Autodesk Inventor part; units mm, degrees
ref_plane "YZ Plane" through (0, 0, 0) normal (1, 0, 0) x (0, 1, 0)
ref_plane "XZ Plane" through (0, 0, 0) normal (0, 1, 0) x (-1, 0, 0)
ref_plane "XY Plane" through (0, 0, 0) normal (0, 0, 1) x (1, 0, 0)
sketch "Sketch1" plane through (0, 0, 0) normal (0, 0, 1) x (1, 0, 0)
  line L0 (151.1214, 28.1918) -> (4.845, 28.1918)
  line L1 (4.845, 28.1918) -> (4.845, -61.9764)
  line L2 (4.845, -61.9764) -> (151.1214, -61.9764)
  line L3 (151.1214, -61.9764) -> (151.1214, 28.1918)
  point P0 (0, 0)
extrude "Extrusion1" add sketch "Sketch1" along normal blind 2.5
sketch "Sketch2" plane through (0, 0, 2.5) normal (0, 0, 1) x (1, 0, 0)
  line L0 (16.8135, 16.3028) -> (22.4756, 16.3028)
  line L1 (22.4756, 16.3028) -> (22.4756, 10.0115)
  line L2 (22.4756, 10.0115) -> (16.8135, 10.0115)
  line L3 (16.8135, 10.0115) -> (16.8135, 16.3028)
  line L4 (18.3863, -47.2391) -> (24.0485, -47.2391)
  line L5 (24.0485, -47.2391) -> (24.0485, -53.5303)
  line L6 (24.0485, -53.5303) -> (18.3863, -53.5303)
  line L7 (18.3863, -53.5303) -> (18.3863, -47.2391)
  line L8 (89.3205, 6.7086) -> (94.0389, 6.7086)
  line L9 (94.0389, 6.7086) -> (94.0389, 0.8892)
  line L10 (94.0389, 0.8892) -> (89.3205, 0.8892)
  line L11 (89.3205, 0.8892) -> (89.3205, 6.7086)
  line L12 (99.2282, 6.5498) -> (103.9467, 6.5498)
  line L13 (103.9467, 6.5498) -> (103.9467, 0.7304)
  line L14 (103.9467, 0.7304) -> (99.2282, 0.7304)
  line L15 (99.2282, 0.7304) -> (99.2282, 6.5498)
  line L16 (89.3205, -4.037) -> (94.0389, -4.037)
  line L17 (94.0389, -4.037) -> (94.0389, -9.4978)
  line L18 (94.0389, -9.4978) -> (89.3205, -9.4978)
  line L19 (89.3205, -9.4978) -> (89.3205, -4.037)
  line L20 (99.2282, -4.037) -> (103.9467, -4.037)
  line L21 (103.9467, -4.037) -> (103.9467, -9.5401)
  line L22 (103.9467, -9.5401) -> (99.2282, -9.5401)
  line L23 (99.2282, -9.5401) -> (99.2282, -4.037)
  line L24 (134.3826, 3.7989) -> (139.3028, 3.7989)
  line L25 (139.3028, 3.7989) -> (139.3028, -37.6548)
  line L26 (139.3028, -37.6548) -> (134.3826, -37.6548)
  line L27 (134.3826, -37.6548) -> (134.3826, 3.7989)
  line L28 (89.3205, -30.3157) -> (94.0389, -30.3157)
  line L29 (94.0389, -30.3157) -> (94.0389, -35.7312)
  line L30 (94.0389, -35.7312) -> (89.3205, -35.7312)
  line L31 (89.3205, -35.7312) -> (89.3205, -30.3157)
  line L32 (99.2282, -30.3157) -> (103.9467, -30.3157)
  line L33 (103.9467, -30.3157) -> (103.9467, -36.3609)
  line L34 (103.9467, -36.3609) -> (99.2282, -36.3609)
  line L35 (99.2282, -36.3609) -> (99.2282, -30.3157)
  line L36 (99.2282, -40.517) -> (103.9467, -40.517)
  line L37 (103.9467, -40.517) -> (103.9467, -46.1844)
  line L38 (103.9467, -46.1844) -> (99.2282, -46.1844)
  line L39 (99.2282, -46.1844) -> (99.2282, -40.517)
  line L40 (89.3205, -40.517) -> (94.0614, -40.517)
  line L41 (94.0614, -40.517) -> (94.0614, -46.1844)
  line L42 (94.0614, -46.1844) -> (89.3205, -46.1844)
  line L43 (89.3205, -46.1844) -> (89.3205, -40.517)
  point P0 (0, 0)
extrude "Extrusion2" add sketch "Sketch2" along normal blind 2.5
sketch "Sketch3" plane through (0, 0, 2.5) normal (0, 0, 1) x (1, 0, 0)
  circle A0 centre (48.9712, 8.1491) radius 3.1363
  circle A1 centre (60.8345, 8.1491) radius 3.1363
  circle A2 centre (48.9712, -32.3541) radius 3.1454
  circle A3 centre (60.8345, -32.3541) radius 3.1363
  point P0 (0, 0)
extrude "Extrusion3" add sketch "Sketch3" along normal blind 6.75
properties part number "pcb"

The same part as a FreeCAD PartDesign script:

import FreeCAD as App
import Part
import Sketcher
Q = App.Units.Quantity

doc = App.newDocument("Part")
body = doc.addObject("PartDesign::Body", "Body")

# Sketch on XY plane
sketch1 = doc.addObject("Sketcher::SketchObject", "Sketch")
body.addObject(sketch1)
sketch1.AttachmentSupport = (doc.XY_Plane, [""])
sketch1.MapMode = "FlatFace"
sketch1.addGeometry(Part.LineSegment(App.Vector(151.1214, -61.9764, 0), App.Vector(151.1214, 28.1918, 0)), False)
sketch1.addGeometry(Part.LineSegment(App.Vector(151.1214, 28.1918, 0), App.Vector(4.845, 28.1918, 0)), False)
sketch1.addGeometry(Part.LineSegment(App.Vector(4.845, 28.1918, 0), App.Vector(4.845, -61.9764, 0)), False)
sketch1.addGeometry(Part.LineSegment(App.Vector(4.845, -61.9764, 0), App.Vector(151.1214, -61.9764, 0)), False)
sketch1.addConstraint(Sketcher.Constraint("Coincident", 0, 2, 1, 1))
sketch1.addConstraint(Sketcher.Constraint("Coincident", 1, 2, 2, 1))
sketch1.addConstraint(Sketcher.Constraint("Coincident", 2, 2, 3, 1))
sketch1.addConstraint(Sketcher.Constraint("Coincident", 3, 2, 0, 1))
sketch1.addConstraint(Sketcher.Constraint("Vertical", 0))
sketch1.addConstraint(Sketcher.Constraint("Horizontal", 1))
sketch1.addConstraint(Sketcher.Constraint("Vertical", 2))
sketch1.addConstraint(Sketcher.Constraint("Horizontal", 3))
sketch1.addConstraint(Sketcher.Constraint("DistanceX", 1, 2, 1, 1, 146.2764))
sketch1.addConstraint(Sketcher.Constraint("DistanceY", 0, 1, 0, 2, 90.1682))
sketch1.addConstraint(Sketcher.Constraint("DistanceX", -1, 1, 0, 2, 151.1214))
sketch1.addConstraint(Sketcher.Constraint("DistanceY", -1, 1, 0, 2, 28.1918))
pad1 = doc.addObject("PartDesign::Pad", "Pad")
body.addObject(pad1)
pad1.Profile = sketch1
pad1.Length = 2.5

# Sketch on XY plane
sketch2 = doc.addObject("Sketcher::SketchObject", "Sketch001")
body.addObject(sketch2)
sketch2.AttachmentSupport = (doc.XY_Plane, [""])
sketch2.MapMode = "FlatFace"
sketch2.AttachmentOffset = App.Placement(App.Vector(0, 0, 2.5), App.Rotation())
sketch2.addGeometry(Part.LineSegment(App.Vector(22.4756, 16.3028, 0), App.Vector(16.8135, 16.3028, 0)), False)
sketch2.addGeometry(Part.LineSegment(App.Vector(16.8135, 16.3028, 0), App.Vector(16.8135, 10.0115, 0)), False)
sketch2.addGeometry(Part.LineSegment(App.Vector(16.8135, 10.0115, 0), App.Vector(22.4756, 10.0115, 0)), False)
sketch2.addGeometry(Part.LineSegment(App.Vector(22.4756, 10.0115, 0), App.Vector(22.4756, 16.3028, 0)), False)
sketch2.addGeometry(Part.LineSegment(App.Vector(24.0485, -47.2391, 0), App.Vector(18.3863, -47.2391, 0)), False)
sketch2.addGeometry(Part.LineSegment(App.Vector(18.3863, -47.2391, 0), App.Vector(18.3863, -53.5303, 0)), False)
sketch2.addGeometry(Part.LineSegment(App.Vector(18.3863, -53.5303, 0), App.Vector(24.0485, -53.5303, 0)), False)
sketch2.addGeometry(Part.LineSegment(App.Vector(24.0485, -53.5303, 0), App.Vector(24.0485, -47.2391, 0)), False)
sketch2.addGeometry(Part.LineSegment(App.Vector(94.0389, 6.7086, 0), App.Vector(89.3205, 6.7086, 0)), False)
sketch2.addGeometry(Part.LineSegment(App.Vector(89.3205, 6.7086, 0), App.Vector(89.3205, 0.8892, 0)), False)
sketch2.addGeometry(Part.LineSegment(App.Vector(89.3205, 0.8892, 0), App.Vector(94.0389, 0.8892, 0)), False)
sketch2.addGeometry(Part.LineSegment(App.Vector(94.0389, 0.8892, 0), App.Vector(94.0389, 6.7086, 0)), False)
sketch2.addGeometry(Part.LineSegment(App.Vector(103.9467, 6.5498, 0), App.Vector(99.2282, 6.5498, 0)), False)
sketch2.addGeometry(Part.LineSegment(App.Vector(99.2282, 6.5498, 0), App.Vector(99.2282, 0.7304, 0)), False)
sketch2.addGeometry(Part.LineSegment(App.Vector(99.2282, 0.7304, 0), App.Vector(103.9467, 0.7304, 0)), False)
sketch2.addGeometry(Part.LineSegment(App.Vector(103.9467, 0.7304, 0), App.Vector(103.9467, 6.5498, 0)), False)
sketch2.addGeometry(Part.LineSegment(App.Vector(94.0389, -4.037, 0), App.Vector(89.3205, -4.037, 0)), False)
sketch2.addGeometry(Part.LineSegment(App.Vector(89.3205, -4.037, 0), App.Vector(89.3205, -9.4978, 0)), False)
sketch2.addGeometry(Part.LineSegment(App.Vector(89.3205, -9.4978, 0), App.Vector(94.0389, -9.4978, 0)), False)
sketch2.addGeometry(Part.LineSegment(App.Vector(94.0389, -9.4978, 0), App.Vector(94.0389, -4.037, 0)), False)
sketch2.addGeometry(Part.LineSegment(App.Vector(103.9467, -4.037, 0), App.Vector(99.2282, -4.037, 0)), False)
sketch2.addGeometry(Part.LineSegment(App.Vector(99.2282, -4.037, 0), App.Vector(99.2282, -9.5401, 0)), False)
sketch2.addGeometry(Part.LineSegment(App.Vector(99.2282, -9.5401, 0), App.Vector(103.9467, -9.5401, 0)), False)
sketch2.addGeometry(Part.LineSegment(App.Vector(103.9467, -9.5401, 0), App.Vector(103.9467, -4.037, 0)), False)
sketch2.addGeometry(Part.LineSegment(App.Vector(139.3028, 3.7989, 0), App.Vector(134.3826, 3.7989, 0)), False)
sketch2.addGeometry(Part.LineSegment(App.Vector(134.3826, 3.7989, 0), App.Vector(134.3826, -37.6548, 0)), False)
sketch2.addGeometry(Part.LineSegment(App.Vector(134.3826, -37.6548, 0), App.Vector(139.3028, -37.6548, 0)), False)
sketch2.addGeometry(Part.LineSegment(App.Vector(139.3028, -37.6548, 0), App.Vector(139.3028, 3.7989, 0)), False)
sketch2.addGeometry(Part.LineSegment(App.Vector(94.0389, -30.3157, 0), App.Vector(89.3205, -30.3157, 0)), False)
sketch2.addGeometry(Part.LineSegment(App.Vector(89.3205, -30.3157, 0), App.Vector(89.3205, -35.7312, 0)), False)
sketch2.addGeometry(Part.LineSegment(App.Vector(89.3205, -35.7312, 0), App.Vector(94.0389, -35.7312, 0)), False)
sketch2.addGeometry(Part.LineSegment(App.Vector(94.0389, -35.7312, 0), App.Vector(94.0389, -30.3157, 0)), False)
sketch2.addGeometry(Part.LineSegment(App.Vector(103.9467, -30.3157, 0), App.Vector(99.2282, -30.3157, 0)), False)
sketch2.addGeometry(Part.LineSegment(App.Vector(99.2282, -30.3157, 0), App.Vector(99.2282, -36.3609, 0)), False)
sketch2.addGeometry(Part.LineSegment(App.Vector(99.2282, -36.3609, 0), App.Vector(103.9467, -36.3609, 0)), False)
sketch2.addGeometry(Part.LineSegment(App.Vector(103.9467, -36.3609, 0), App.Vector(103.9467, -30.3157, 0)), False)
sketch2.addGeometry(Part.LineSegment(App.Vector(103.9467, -40.517, 0), App.Vector(99.2282, -40.517, 0)), False)
sketch2.addGeometry(Part.LineSegment(App.Vector(99.2282, -40.517, 0), App.Vector(99.2282, -46.1844, 0)), False)
sketch2.addGeometry(Part.LineSegment(App.Vector(99.2282, -46.1844, 0), App.Vector(103.9467, -46.1844, 0)), False)
sketch2.addGeometry(Part.LineSegment(App.Vector(103.9467, -46.1844, 0), App.Vector(103.9467, -40.517, 0)), False)
sketch2.addGeometry(Part.LineSegment(App.Vector(94.0614, -40.517, 0), App.Vector(89.3205, -40.517, 0)), False)
sketch2.addGeometry(Part.LineSegment(App.Vector(89.3205, -40.517, 0), App.Vector(89.3205, -46.1844, 0)), False)
sketch2.addGeometry(Part.LineSegment(App.Vector(89.3205, -46.1844, 0), App.Vector(94.0614, -46.1844, 0)), False)
sketch2.addGeometry(Part.LineSegment(App.Vector(94.0614, -46.1844, 0), App.Vector(94.0614, -40.517, 0)), False)
sketch2.addConstraint(Sketcher.Constraint("Coincident", 0, 2, 1, 1))
sketch2.addConstraint(Sketcher.Constraint("Coincident", 1, 2, 2, 1))
sketch2.addConstraint(Sketcher.Constraint("Coincident", 2, 2, 3, 1))
sketch2.addConstraint(Sketcher.Constraint("Coincident", 3, 2, 0, 1))
sketch2.addConstraint(Sketcher.Constraint("Coincident", 4, 2, 5, 1))
sketch2.addConstraint(Sketcher.Constraint("Coincident", 5, 2, 6, 1))
sketch2.addConstraint(Sketcher.Constraint("Coincident", 6, 2, 7, 1))
sketch2.addConstraint(Sketcher.Constraint("Coincident", 7, 2, 4, 1))
sketch2.addConstraint(Sketcher.Constraint("Coincident", 8, 2, 9, 1))
sketch2.addConstraint(Sketcher.Constraint("Coincident", 9, 2, 10, 1))
sketch2.addConstraint(Sketcher.Constraint("Coincident", 10, 2, 11, 1))
sketch2.addConstraint(Sketcher.Constraint("Coincident", 11, 2, 8, 1))
sketch2.addConstraint(Sketcher.Constraint("Coincident", 12, 2, 13, 1))
sketch2.addConstraint(Sketcher.Constraint("Coincident", 13, 2, 14, 1))
sketch2.addConstraint(Sketcher.Constraint("Coincident", 14, 2, 15, 1))
sketch2.addConstraint(Sketcher.Constraint("Coincident", 15, 2, 12, 1))
sketch2.addConstraint(Sketcher.Constraint("Coincident", 16, 2, 17, 1))
sketch2.addConstraint(Sketcher.Constraint("Coincident", 17, 2, 18, 1))
sketch2.addConstraint(Sketcher.Constraint("Coincident", 18, 2, 19, 1))
sketch2.addConstraint(Sketcher.Constraint("Coincident", 19, 2, 16, 1))
sketch2.addConstraint(Sketcher.Constraint("Coincident", 20, 2, 21, 1))
sketch2.addConstraint(Sketcher.Constraint("Coincident", 21, 2, 22, 1))
sketch2.addConstraint(Sketcher.Constraint("Coincident", 22, 2, 23, 1))
sketch2.addConstraint(Sketcher.Constraint("Coincident", 23, 2, 20, 1))
sketch2.addConstraint(Sketcher.Constraint("Coincident", 24, 2, 25, 1))
sketch2.addConstraint(Sketcher.Constraint("Coincident", 25, 2, 26, 1))
sketch2.addConstraint(Sketcher.Constraint("Coincident", 26, 2, 27, 1))
sketch2.addConstraint(Sketcher.Constraint("Coincident", 27, 2, 24, 1))
sketch2.addConstraint(Sketcher.Constraint("Coincident", 28, 2, 29, 1))
sketch2.addConstraint(Sketcher.Constraint("Coincident", 29, 2, 30, 1))
sketch2.addConstraint(Sketcher.Constraint("Coincident", 30, 2, 31, 1))
sketch2.addConstraint(Sketcher.Constraint("Coincident", 31, 2, 28, 1))
sketch2.addConstraint(Sketcher.Constraint("Coincident", 32, 2, 33, 1))
sketch2.addConstraint(Sketcher.Constraint("Coincident", 33, 2, 34, 1))
sketch2.addConstraint(Sketcher.Constraint("Coincident", 34, 2, 35, 1))
sketch2.addConstraint(Sketcher.Constraint("Coincident", 35, 2, 32, 1))
sketch2.addConstraint(Sketcher.Constraint("Coincident", 36, 2, 37, 1))
sketch2.addConstraint(Sketcher.Constraint("Coincident", 37, 2, 38, 1))
sketch2.addConstraint(Sketcher.Constraint("Coincident", 38, 2, 39, 1))
sketch2.addConstraint(Sketcher.Constraint("Coincident", 39, 2, 36, 1))
sketch2.addConstraint(Sketcher.Constraint("Coincident", 40, 2, 41, 1))
sketch2.addConstraint(Sketcher.Constraint("Coincident", 41, 2, 42, 1))
sketch2.addConstraint(Sketcher.Constraint("Coincident", 42, 2, 43, 1))
sketch2.addConstraint(Sketcher.Constraint("Coincident", 43, 2, 40, 1))
sketch2.addConstraint(Sketcher.Constraint("Horizontal", 0))
sketch2.addConstraint(Sketcher.Constraint("Vertical", 1))
sketch2.addConstraint(Sketcher.Constraint("Horizontal", 2))
sketch2.addConstraint(Sketcher.Constraint("Vertical", 3))
sketch2.addConstraint(Sketcher.Constraint("Horizontal", 4))
sketch2.addConstraint(Sketcher.Constraint("Vertical", 5))
sketch2.addConstraint(Sketcher.Constraint("Horizontal", 6))
sketch2.addConstraint(Sketcher.Constraint("Vertical", 7))
sketch2.addConstraint(Sketcher.Constraint("Horizontal", 8))
sketch2.addConstraint(Sketcher.Constraint("Vertical", 9))
sketch2.addConstraint(Sketcher.Constraint("Horizontal", 10))
sketch2.addConstraint(Sketcher.Constraint("Vertical", 11))
sketch2.addConstraint(Sketcher.Constraint("Horizontal", 12))
sketch2.addConstraint(Sketcher.Constraint("Vertical", 13))
sketch2.addConstraint(Sketcher.Constraint("Horizontal", 14))
sketch2.addConstraint(Sketcher.Constraint("Vertical", 15))
sketch2.addConstraint(Sketcher.Constraint("Horizontal", 16))
sketch2.addConstraint(Sketcher.Constraint("Vertical", 17))
sketch2.addConstraint(Sketcher.Constraint("Horizontal", 18))
sketch2.addConstraint(Sketcher.Constraint("Vertical", 19))
sketch2.addConstraint(Sketcher.Constraint("Horizontal", 20))
sketch2.addConstraint(Sketcher.Constraint("Vertical", 21))
sketch2.addConstraint(Sketcher.Constraint("Horizontal", 22))
sketch2.addConstraint(Sketcher.Constraint("Vertical", 23))
sketch2.addConstraint(Sketcher.Constraint("Horizontal", 24))
sketch2.addConstraint(Sketcher.Constraint("Vertical", 25))
sketch2.addConstraint(Sketcher.Constraint("Horizontal", 26))
sketch2.addConstraint(Sketcher.Constraint("Vertical", 27))
sketch2.addConstraint(Sketcher.Constraint("Horizontal", 28))
sketch2.addConstraint(Sketcher.Constraint("Vertical", 29))
sketch2.addConstraint(Sketcher.Constraint("Horizontal", 30))
sketch2.addConstraint(Sketcher.Constraint("Vertical", 31))
sketch2.addConstraint(Sketcher.Constraint("Horizontal", 32))
sketch2.addConstraint(Sketcher.Constraint("Vertical", 33))
sketch2.addConstraint(Sketcher.Constraint("Horizontal", 34))
sketch2.addConstraint(Sketcher.Constraint("Vertical", 35))
sketch2.addConstraint(Sketcher.Constraint("Horizontal", 36))
sketch2.addConstraint(Sketcher.Constraint("Vertical", 37))
sketch2.addConstraint(Sketcher.Constraint("Horizontal", 38))
sketch2.addConstraint(Sketcher.Constraint("Vertical", 39))
sketch2.addConstraint(Sketcher.Constraint("Horizontal", 40))
sketch2.addConstraint(Sketcher.Constraint("Vertical", 41))
sketch2.addConstraint(Sketcher.Constraint("Horizontal", 42))
sketch2.addConstraint(Sketcher.Constraint("Vertical", 43))
sketch2.addConstraint(Sketcher.Constraint("Horizontal", 19, 2, 20, 2))
sketch2.addConstraint(Sketcher.Constraint("Horizontal", 31, 2, 32, 2))
sketch2.addConstraint(Sketcher.Constraint("Horizontal", 39, 2, 40, 2))
sketch2.addConstraint(Sketcher.Constraint("Horizontal", 38, 2, 41, 2))
sketch2.addConstraint(Sketcher.Constraint("Vertical", 9, 2, 16, 2))
sketch2.addConstraint(Sketcher.Constraint("Vertical", 11, 2, 18, 2))
sketch2.addConstraint(Sketcher.Constraint("Vertical", 13, 2, 20, 2))
sketch2.addConstraint(Sketcher.Constraint("Vertical", 15, 2, 22, 2))
sketch2.addConstraint(Sketcher.Constraint("Vertical", 17, 2, 28, 2))
sketch2.addConstraint(Sketcher.Constraint("Vertical", 19, 2, 30, 2))
sketch2.addConstraint(Sketcher.Constraint("Vertical", 21, 2, 32, 2))
sketch2.addConstraint(Sketcher.Constraint("Vertical", 23, 2, 34, 2))
sketch2.addConstraint(Sketcher.Constraint("Vertical", 33, 2, 36, 2))
sketch2.addConstraint(Sketcher.Constraint("Vertical", 35, 2, 38, 2))
sketch2.addConstraint(Sketcher.Constraint("Vertical", 29, 2, 40, 2))
sketch2.addConstraint(Sketcher.Constraint("Equal", 2, 4))
sketch2.addConstraint(Sketcher.Constraint("Equal", 10, 12))
sketch2.addConstraint(Sketcher.Constraint("Equal", 3, 5))
sketch2.addConstraint(Sketcher.Constraint("Equal", 11, 13))
sketch2.addConstraint(Sketcher.Constraint("DistanceY", 17, 2, 17, 1, Q("0.215 in")))
sketch2.addConstraint(Sketcher.Constraint("DistanceY", 33, 2, 33, 1, Q("0.238 in")))
sketch2.addConstraint(Sketcher.Constraint("DistanceX", 24, 2, 24, 1, Q("0.1937 in")))
sketch2.addConstraint(Sketcher.Constraint("DistanceY", 1, 2, 1, 1, Q("0.2477 in")))
sketch2.addConstraint(Sketcher.Constraint("DistanceY", 9, 2, 9, 1, Q("0.2291 in")))
sketch2.addConstraint(Sketcher.Constraint("DistanceY", 29, 2, 29, 1, Q("0.2132 in")))
sketch2.addConstraint(Sketcher.Constraint("DistanceY", -1, 1, 9, 2, Q("0.035 in")))
sketch2.addConstraint(Sketcher.Constraint("DistanceX", 4, 2, 2, 2, Q("0.161 in")))
sketch2.addConstraint(Sketcher.Constraint("DistanceX", 0, 2, 0, 1, 5.662))
sketch2.addConstraint(Sketcher.Constraint("DistanceX", 8, 2, 8, 1, 4.7184))
sketch2.addConstraint(Sketcher.Constraint("DistanceX", 40, 2, 40, 1, 4.741))
sketch2.addConstraint(Sketcher.Constraint("DistanceY", 21, 2, 21, 1, 5.503))
sketch2.addConstraint(Sketcher.Constraint("DistanceY", 25, 2, 25, 1, 41.4537))
sketch2.addConstraint(Sketcher.Constraint("DistanceY", 37, 2, 37, 1, 5.6674))
sketch2.addConstraint(Sketcher.Constraint("DistanceY", 4, 2, -1, 1, Q("1.8598 in")))
sketch2.addConstraint(Sketcher.Constraint("DistanceX", -1, 1, 6, 2, Q("0.9468 in")))
sketch2.addConstraint(Sketcher.Constraint("DistanceX", -1, 1, 14, 2, Q("4.0924 in")))
sketch2.addConstraint(Sketcher.Constraint("DistanceY", 21, 2, -1, 1, Q("0.3756 in")))
sketch2.addConstraint(Sketcher.Constraint("DistanceX", -1, 1, 42, 2, Q("3.7032 in")))
sketch2.addConstraint(Sketcher.Constraint("DistanceY", 16, 2, 13, 2, Q("0.1877 in")))
sketch2.addConstraint(Sketcher.Constraint("DistanceY", 24, 2, 15, 2, Q("0.1083 in")))
sketch2.addConstraint(Sketcher.Constraint("DistanceY", 28, 2, 17, 2, Q("0.8196 in")))
sketch2.addConstraint(Sketcher.Constraint("DistanceY", -1, 1, 0, 2, 16.3028))
sketch2.addConstraint(Sketcher.Constraint("DistanceX", -1, 1, 24, 2, 134.3826))
sketch2.addConstraint(Sketcher.Constraint("DistanceY", 36, 2, -1, 1, 40.517))
pad2 = doc.addObject("PartDesign::Pad", "Pad001")
body.addObject(pad2)
pad2.Profile = sketch2
pad2.Length = 2.5

# Sketch on XY plane
sketch3 = doc.addObject("Sketcher::SketchObject", "Sketch002")
body.addObject(sketch3)
sketch3.AttachmentSupport = (doc.XY_Plane, [""])
sketch3.MapMode = "FlatFace"
sketch3.AttachmentOffset = App.Placement(App.Vector(0, 0, 2.5), App.Rotation())
sketch3.addGeometry(Part.Circle(App.Vector(48.9712, 8.1491, 0), App.Vector(0, 0, 1), 3.1363), False)
sketch3.addGeometry(Part.Circle(App.Vector(60.8345, 8.1491, 0), App.Vector(0, 0, 1), 3.1363), False)
sketch3.addGeometry(Part.Circle(App.Vector(48.9712, -32.3541, 0), App.Vector(0, 0, 1), 3.1454), False)
sketch3.addGeometry(Part.Circle(App.Vector(60.8345, -32.3541, 0), App.Vector(0, 0, 1), 3.1363), False)
sketch3.addConstraint(Sketcher.Constraint("Equal", 0, 1))
sketch3.addConstraint(Sketcher.Constraint("Equal", 1, 3))
sketch3.addConstraint(Sketcher.Constraint("Horizontal", 0, 3, 1, 3))
sketch3.addConstraint(Sketcher.Constraint("Horizontal", 2, 3, 3, 3))
sketch3.addConstraint(Sketcher.Constraint("Vertical", 0, 3, 2, 3))
sketch3.addConstraint(Sketcher.Constraint("Vertical", 1, 3, 3, 3))
sketch3.addConstraint(Sketcher.Constraint("Diameter", 0, 6.2726))
sketch3.addConstraint(Sketcher.Constraint("Diameter", 2, 6.2908))
sketch3.addConstraint(Sketcher.Constraint("DistanceX", -1, 1, 0, 3, Q("1.928 in")))
sketch3.addConstraint(Sketcher.Constraint("DistanceY", -1, 1, 0, 3, 8.149))
sketch3.addConstraint(Sketcher.Constraint("DistanceX", -1, 1, 1, 3, 60.8345))
sketch3.addConstraint(Sketcher.Constraint("DistanceY", 2, 3, -1, 1, 32.354))
pad3 = doc.addObject("PartDesign::Pad", "Pad002")
body.addObject(pad3)
pad3.Profile = sketch3
pad3.Length = 6.75

doc.recompute()
